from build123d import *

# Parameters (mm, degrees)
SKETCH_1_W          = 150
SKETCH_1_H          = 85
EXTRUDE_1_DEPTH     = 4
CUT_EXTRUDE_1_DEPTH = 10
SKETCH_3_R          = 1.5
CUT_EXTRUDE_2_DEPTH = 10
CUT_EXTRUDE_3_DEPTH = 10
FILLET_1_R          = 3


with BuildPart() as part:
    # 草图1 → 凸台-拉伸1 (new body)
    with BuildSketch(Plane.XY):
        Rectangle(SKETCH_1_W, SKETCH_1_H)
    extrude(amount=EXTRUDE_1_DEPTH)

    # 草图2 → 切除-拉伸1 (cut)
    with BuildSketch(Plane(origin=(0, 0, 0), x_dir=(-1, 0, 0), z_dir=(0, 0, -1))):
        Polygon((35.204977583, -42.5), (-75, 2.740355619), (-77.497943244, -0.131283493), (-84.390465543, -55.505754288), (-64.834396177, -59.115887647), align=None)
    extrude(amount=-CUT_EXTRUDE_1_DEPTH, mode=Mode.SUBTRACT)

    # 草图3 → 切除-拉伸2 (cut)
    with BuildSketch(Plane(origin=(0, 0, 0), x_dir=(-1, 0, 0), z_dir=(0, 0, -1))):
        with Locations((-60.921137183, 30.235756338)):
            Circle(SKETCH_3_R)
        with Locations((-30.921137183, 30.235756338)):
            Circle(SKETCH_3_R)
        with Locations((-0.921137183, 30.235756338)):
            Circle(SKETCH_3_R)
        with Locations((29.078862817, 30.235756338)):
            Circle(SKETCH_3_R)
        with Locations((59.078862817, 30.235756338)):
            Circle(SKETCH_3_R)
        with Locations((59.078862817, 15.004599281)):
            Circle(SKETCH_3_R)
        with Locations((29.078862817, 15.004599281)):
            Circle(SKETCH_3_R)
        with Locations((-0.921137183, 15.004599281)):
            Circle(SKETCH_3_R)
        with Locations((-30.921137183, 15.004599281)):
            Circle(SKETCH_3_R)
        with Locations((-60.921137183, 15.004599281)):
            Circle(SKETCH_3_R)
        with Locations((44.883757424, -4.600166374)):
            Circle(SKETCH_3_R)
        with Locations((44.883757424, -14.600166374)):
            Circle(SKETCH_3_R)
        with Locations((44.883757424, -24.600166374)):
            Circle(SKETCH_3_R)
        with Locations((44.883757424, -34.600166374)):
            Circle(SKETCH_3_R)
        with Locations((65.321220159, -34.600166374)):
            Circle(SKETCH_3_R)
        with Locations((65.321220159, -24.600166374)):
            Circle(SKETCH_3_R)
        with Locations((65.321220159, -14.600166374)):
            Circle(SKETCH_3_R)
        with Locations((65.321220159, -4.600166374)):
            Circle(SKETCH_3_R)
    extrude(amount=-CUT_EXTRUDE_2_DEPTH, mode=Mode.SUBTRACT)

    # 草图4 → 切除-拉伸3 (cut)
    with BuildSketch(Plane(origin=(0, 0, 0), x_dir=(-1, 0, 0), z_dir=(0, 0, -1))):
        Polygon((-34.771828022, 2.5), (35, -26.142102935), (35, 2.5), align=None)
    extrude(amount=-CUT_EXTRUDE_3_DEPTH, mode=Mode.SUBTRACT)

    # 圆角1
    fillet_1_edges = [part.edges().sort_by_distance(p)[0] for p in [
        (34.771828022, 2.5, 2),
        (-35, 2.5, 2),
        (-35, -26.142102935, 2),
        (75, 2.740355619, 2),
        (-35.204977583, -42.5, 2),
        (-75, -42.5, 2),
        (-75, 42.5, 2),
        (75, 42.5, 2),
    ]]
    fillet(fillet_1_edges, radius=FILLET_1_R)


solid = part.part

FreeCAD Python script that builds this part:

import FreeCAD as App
import Part
import Sketcher
from FreeCAD import Vector
Q = App.Units.Quantity


def edges_at(feature, points):
    """Names of the edges that pass closest to the given points."""
    edges = feature.Shape.Edges
    near = lambda p: min(range(len(edges)), key=lambda i: edges[i].distToShape(Part.Vertex(*p))[0])
    return sorted({f"Edge{near(p) + 1}" for p in points})


def add_polygon(sketch, points):
    """Adds a closed chain of lines whose ends are joined by coincident constraints."""
    first, n = sketch.GeometryCount, len(points)
    for a, b in zip(points, points[1:] + points[:1]):
        sketch.addGeometry(Part.LineSegment(App.Vector(*a, 0), App.Vector(*b, 0)), False)
    for i in range(n):
        sketch.addConstraint(Sketcher.Constraint("Coincident", first + i, 2, first + (i + 1) % n, 1))

doc = App.newDocument("Part")
body = doc.addObject("PartDesign::Body", "Body")

# Sketch on XY plane
sketch1 = body.newObject("Sketcher::SketchObject", "Sketch")
sketch1.AttachmentSupport = (doc.getObject("XY_Plane"), [""])
sketch1.MapMode = "FlatFace"
add_polygon(sketch1, [(-75, 42), (-75, -42), (75, -42), (75, 42)])  # lines 0-3
sketch1.addConstraint([
    Sketcher.Constraint("Vertical", 0),
    Sketcher.Constraint("Horizontal", 1),
    Sketcher.Constraint("Vertical", 2),
    Sketcher.Constraint("Horizontal", 3),
    Sketcher.Constraint("Symmetric", 0, 2, 2, 2, -1, 1),
    Sketcher.Constraint("DistanceX", 1, 1, 1, 2, Q("150 mm")),
    Sketcher.Constraint("DistanceY", 0, 2, 0, 1, Q("85 mm")),
])
pad1 = body.newObject("PartDesign::Pad", "Pad")
pad1.Profile = sketch1
pad1.Length = 4

# Sketch on XY plane
sketch2 = body.newObject("Sketcher::SketchObject", "Sketch001")
sketch2.AttachmentSupport = (doc.getObject("XY_Plane"), [""])
sketch2.MapMode = "FlatFace"
add_polygon(sketch2, [(-35.2, -42.5), (75, 2.7), (77.5, -0.1), (84.4, -55.5), (64.8, -59.1)])  # lines 0-4
sketch2.addConstraint([
    Sketcher.Constraint("DistanceX", -1, 1, 0, 2, Q("75 mm")),
    Sketcher.Constraint("DistanceY", 4, 2, -1, 1, Q("42.5 mm")),
    Sketcher.Constraint("Distance", 3, Q("19.886501 mm")),
    Sketcher.Constraint("Distance", 1, Q("3.806052 mm")),
    Sketcher.Constraint("Distance", 4, Q("101.409881 mm")),
    Sketcher.Constraint("DistanceY", 1, 2, 0, 2, Q("2.871639 mm")),
    Sketcher.Constraint("DistanceY", 2, 2, 1, 2, Q("55.374471 mm")),
    Sketcher.Constraint("DistanceX", 3, 2, 2, 2, Q("19.556069 mm")),
    Sketcher.Constraint("DistanceX", 4, 2, 1, 2, Q("112.702921 mm")),
    Sketcher.Constraint("Distance", 0, Q("119.129454 mm")),
])
pocket1 = body.newObject("PartDesign::Pocket", "Pocket")
pocket1.Profile = sketch2
pocket1.Length = 10
pocket1.Reversed = True

# Sketch on XY plane
sketch3 = body.newObject("Sketcher::SketchObject", "Sketch002")
sketch3.AttachmentSupport = (doc.getObject("XY_Plane"), [""])
sketch3.MapMode = "FlatFace"
sketch3.addGeometry([
    Part.Circle(Vector(60.9, 30.2, 0), Vector(0, 0, 1), 1.5),  # 0
    Part.Circle(Vector(30.9, 30.2, 0), Vector(0, 0, 1), 1.5),  # 1
    Part.Circle(Vector(0.9, 30.2, 0), Vector(0, 0, 1), 1.5),  # 2
    Part.Circle(Vector(-29.1, 30.2, 0), Vector(0, 0, 1), 1.5),  # 3
    Part.Circle(Vector(-59.1, 30.2, 0), Vector(0, 0, 1), 1.5),  # 4
    Part.Circle(Vector(-59.1, 15, 0), Vector(0, 0, 1), 1.5),  # 5
    Part.Circle(Vector(-29.1, 15, 0), Vector(0, 0, 1), 1.5),  # 6
    Part.Circle(Vector(0.9, 15, 0), Vector(0, 0, 1), 1.5),  # 7
    Part.Circle(Vector(30.9, 15, 0), Vector(0, 0, 1), 1.5),  # 8
    Part.Circle(Vector(60.9, 15, 0), Vector(0, 0, 1), 1.5),  # 9
    Part.Circle(Vector(-44.9, -4.6, 0), Vector(0, 0, 1), 1.5),  # 10
    Part.Circle(Vector(-44.9, -14.6, 0), Vector(0, 0, 1), 1.5),  # 11
    Part.Circle(Vector(-44.9, -24.6, 0), Vector(0, 0, 1), 1.5),  # 12
    Part.Circle(Vector(-44.9, -34.6, 0), Vector(0, 0, 1), 1.5),  # 13
    Part.Circle(Vector(-65.3, -34.6, 0), Vector(0, 0, 1), 1.5),  # 14
    Part.Circle(Vector(-65.3, -24.6, 0), Vector(0, 0, 1), 1.5),  # 15
    Part.Circle(Vector(-65.3, -14.6, 0), Vector(0, 0, 1), 1.5),  # 16
    Part.Circle(Vector(-65.3, -4.6, 0), Vector(0, 0, 1), 1.5),  # 17
], False)
sketch3.addConstraint([
    Sketcher.Constraint("Equal", 0, 1),
    Sketcher.Constraint("Equal", 1, 2),
    Sketcher.Constraint("Equal", 2, 3),
    Sketcher.Constraint("Equal", 3, 4),
    Sketcher.Constraint("Equal", 4, 5),
    Sketcher.Constraint("Equal", 5, 6),
    Sketcher.Constraint("Equal", 6, 7),
    Sketcher.Constraint("Equal", 7, 8),
    Sketcher.Constraint("Equal", 8, 9),
    Sketcher.Constraint("Equal", 9, 10),
    Sketcher.Constraint("Equal", 10, 11),
    Sketcher.Constraint("Equal", 11, 12),
    Sketcher.Constraint("Equal", 12, 13),
    Sketcher.Constraint("Equal", 13, 14),
    Sketcher.Constraint("Equal", 14, 15),
    Sketcher.Constraint("Equal", 15, 16),
    Sketcher.Constraint("Equal", 16, 17),
    Sketcher.Constraint("Horizontal", 0, 3, 1, 3),
    Sketcher.Constraint("Horizontal", 1, 3, 2, 3),
    Sketcher.Constraint("Horizontal", 2, 3, 3, 3),
    Sketcher.Constraint("Horizontal", 3, 3, 4, 3),
    Sketcher.Constraint("Horizontal", 5, 3, 6, 3),
    Sketcher.Constraint("Horizontal", 6, 3, 7, 3),
    Sketcher.Constraint("Horizontal", 7, 3, 8, 3),
    Sketcher.Constraint("Horizontal", 8, 3, 9, 3),
    Sketcher.Constraint("Horizontal", 13, 3, 14, 3),
    Sketcher.Constraint("Horizontal", 12, 3, 15, 3),
    Sketcher.Constraint("Horizontal", 11, 3, 16, 3),
    Sketcher.Constraint("Horizontal", 10, 3, 17, 3),
    Sketcher.Constraint("Vertical", 4, 3, 5, 3),
    Sketcher.Constraint("Vertical", 3, 3, 6, 3),
    Sketcher.Constraint("Vertical", 2, 3, 7, 3),
    Sketcher.Constraint("Vertical", 1, 3, 8, 3),
    Sketcher.Constraint("Vertical", 0, 3, 9, 3),
    Sketcher.Constraint("Vertical", 10, 3, 11, 3),
    Sketcher.Constraint("Vertical", 11, 3, 12, 3),
    Sketcher.Constraint("Vertical", 12, 3, 13, 3),
    Sketcher.Constraint("Vertical", 14, 3, 15, 3),
    Sketcher.Constraint("Vertical", 15, 3, 16, 3),
    Sketcher.Constraint("Vertical", 16, 3, 17, 3),
    Sketcher.Constraint("Diameter", 0, Q("3 mm")),
    Sketcher.Constraint("DistanceX", 1, 3, 0, 3, Q("30 mm")),
    Sketcher.Constraint("DistanceX", 2, 3, 1, 3, Q("30 mm")),
    Sketcher.Constraint("DistanceX", 3, 3, 2, 3, Q("30 mm")),
    Sketcher.Constraint("DistanceX", 4, 3, 3, 3, Q("30 mm")),
    Sketcher.Constraint("DistanceY", 11, 3, 10, 3, Q("10 mm")),
    Sketcher.Constraint("DistanceY", 12, 3, 11, 3, Q("10 mm")),
    Sketcher.Constraint("DistanceY", 13, 3, 12, 3, Q("10 mm")),
    Sketcher.Constraint("DistanceY", -1, 1, 5, 3, Q("15.004599 mm")),
    Sketcher.Constraint("DistanceX", 14, 3, -1, 1, Q("65.32122 mm")),
    Sketcher.Constraint("DistanceX", -1, 1, 0, 3, Q("60.921137 mm")),
    Sketcher.Constraint("DistanceY", -1, 1, 0, 3, Q("30.235756 mm")),
    Sketcher.Constraint("DistanceX", 10, 3, -1, 1, Q("44.883757 mm")),
    Sketcher.Constraint("DistanceY", 10, 3, -1, 1, Q("4.600166 mm")),
])
pocket2 = body.newObject("PartDesign::Pocket", "Pocket001")
pocket2.Profile = sketch3
pocket2.Length = 10
pocket2.Reversed = True

# Sketch on XY plane
sketch4 = body.newObject("Sketcher::SketchObject", "Sketch003")
sketch4.AttachmentSupport = (doc.getObject("XY_Plane"), [""])
sketch4.MapMode = "FlatFace"
add_polygon(sketch4, [(35, 2), (-35, -26), (-35, 2)])  # lines 0-2
sketch4.addConstraint([
    Sketcher.Constraint("Vertical", 1),
    Sketcher.Constraint("Horizontal", 2),
    Sketcher.Constraint("DistanceX", 0, 2, -1, 1, Q("35 mm")),
    Sketcher.Constraint("DistanceY", -1, 1, 1, 2, Q("2.5 mm")),
    Sketcher.Constraint("Distance", 0, Q("75.422 mm")),
    Sketcher.Constraint("DistanceX", 2, 1, 2, 2, Q("69.771828 mm")),
])
pocket3 = body.newObject("PartDesign::Pocket", "Pocket002")
pocket3.Profile = sketch4
pocket3.Length = 10
pocket3.Reversed = True
doc.recompute()

fillet = body.newObject("PartDesign::Fillet", "Fillet")
fillet.Base = (pocket3, edges_at(pocket3, [
    (34.772, 2.5, 2),
    (-35, 2.5, 2),
    (-35, -26.142, 2),
    (75, 2.74, 2),
    (-35.205, -42.5, 2),
    (-75, -42.5, 2),
    (-75, 42.5, 2),
    (75, 42.5, 2),
]))
fillet.Radius = 3

doc.recompute()
